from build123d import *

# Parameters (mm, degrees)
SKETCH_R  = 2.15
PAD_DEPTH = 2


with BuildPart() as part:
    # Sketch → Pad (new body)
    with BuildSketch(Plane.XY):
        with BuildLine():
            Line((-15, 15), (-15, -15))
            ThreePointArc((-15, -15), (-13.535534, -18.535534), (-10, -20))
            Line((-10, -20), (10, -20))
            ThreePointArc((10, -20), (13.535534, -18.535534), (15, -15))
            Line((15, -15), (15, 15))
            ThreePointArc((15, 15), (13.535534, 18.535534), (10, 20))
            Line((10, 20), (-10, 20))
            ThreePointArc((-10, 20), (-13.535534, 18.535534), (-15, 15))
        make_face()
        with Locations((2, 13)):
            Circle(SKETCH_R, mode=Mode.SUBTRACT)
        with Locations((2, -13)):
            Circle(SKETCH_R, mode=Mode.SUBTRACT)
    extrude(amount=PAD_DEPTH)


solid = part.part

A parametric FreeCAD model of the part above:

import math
import FreeCAD as App
import Part
import Sketcher
Q = App.Units.Quantity

doc = App.newDocument("Part")
body = doc.addObject("PartDesign::Body", "Body")

# Sketch on XY plane
sketch1 = doc.addObject("Sketcher::SketchObject", "Sketch")
body.addObject(sketch1)
sketch1.AttachmentSupport = (doc.XY_Plane, [""])
sketch1.MapMode = "FlatFace"
sketch1.addGeometry([
    Part.LineSegment(App.Vector(-15, 15, 0), App.Vector(-15, -15, 0)),  # 0
    Part.ArcOfCircle(Part.Circle(App.Vector(-10, -15, 0), App.Vector(0, 0, 1), 5), math.radians(180), math.radians(270)),  # 1
    Part.LineSegment(App.Vector(-10, -20, 0), App.Vector(10, -20, 0)),  # 2
    Part.ArcOfCircle(Part.Circle(App.Vector(10, -15, 0), App.Vector(0, 0, 1), 5), math.radians(-90), math.radians(0)),  # 3
    Part.LineSegment(App.Vector(15, -15, 0), App.Vector(15, 15, 0)),  # 4
    Part.ArcOfCircle(Part.Circle(App.Vector(10, 15, 0), App.Vector(0, 0, 1), 5), math.radians(0), math.radians(90)),  # 5
    Part.LineSegment(App.Vector(10, 20, 0), App.Vector(-10, 20, 0)),  # 6
    Part.ArcOfCircle(Part.Circle(App.Vector(-10, 15, 0), App.Vector(0, 0, 1), 5), math.radians(90), math.radians(180)),  # 7
    Part.Circle(App.Vector(2, -13, 0), App.Vector(0, 0, 1), 2.1),  # 8
    Part.Circle(App.Vector(2, 13, 0), App.Vector(0, 0, 1), 2.1),  # 9
], False)
sketch1.addConstraint([
    Sketcher.Constraint("Tangent", 0, 2, 1, 1),
    Sketcher.Constraint("Tangent", 1, 2, 2, 1),
    Sketcher.Constraint("Tangent", 2, 2, 3, 1),
    Sketcher.Constraint("Tangent", 3, 2, 4, 1),
    Sketcher.Constraint("Tangent", 4, 2, 5, 1),
    Sketcher.Constraint("Tangent", 5, 2, 6, 1),
    Sketcher.Constraint("Tangent", 6, 2, 7, 1),
    Sketcher.Constraint("Tangent", 7, 2, 0, 1),
    Sketcher.Constraint("Vertical", 0),
    Sketcher.Constraint("Horizontal", 2),
    Sketcher.Constraint("Vertical", 4),
    Sketcher.Constraint("Horizontal", 6),
    Sketcher.Constraint("Equal", 1, 3),
    Sketcher.Constraint("Equal", 3, 5),
    Sketcher.Constraint("Equal", 5, 7),
    Sketcher.Constraint("Equal", 8, 9),
    Sketcher.Constraint("Symmetric", 1, 3, 5, 3, -1, 1),
    Sketcher.Constraint("Symmetric", 8, 3, 9, 3, -1),
    Sketcher.Constraint("Radius", 1, Q("5 mm")),
    Sketcher.Constraint("Diameter", 8, Q("4.3 mm")),
    Sketcher.Constraint("DistanceX", 2, 1, 2, 2, Q("20 mm")),
    Sketcher.Constraint("DistanceY", 0, 2, 0, 1, Q("30 mm")),
    Sketcher.Constraint("DistanceX", -1, 1, 8, 3, Q("2 mm")),
    Sketcher.Constraint("DistanceY", 8, 3, -1, 1, Q("13 mm")),
])
pad1 = doc.addObject("PartDesign::Pad", "Pad")
body.addObject(pad1)
pad1.Profile = sketch1
pad1.Length = 2

doc.recompute()
